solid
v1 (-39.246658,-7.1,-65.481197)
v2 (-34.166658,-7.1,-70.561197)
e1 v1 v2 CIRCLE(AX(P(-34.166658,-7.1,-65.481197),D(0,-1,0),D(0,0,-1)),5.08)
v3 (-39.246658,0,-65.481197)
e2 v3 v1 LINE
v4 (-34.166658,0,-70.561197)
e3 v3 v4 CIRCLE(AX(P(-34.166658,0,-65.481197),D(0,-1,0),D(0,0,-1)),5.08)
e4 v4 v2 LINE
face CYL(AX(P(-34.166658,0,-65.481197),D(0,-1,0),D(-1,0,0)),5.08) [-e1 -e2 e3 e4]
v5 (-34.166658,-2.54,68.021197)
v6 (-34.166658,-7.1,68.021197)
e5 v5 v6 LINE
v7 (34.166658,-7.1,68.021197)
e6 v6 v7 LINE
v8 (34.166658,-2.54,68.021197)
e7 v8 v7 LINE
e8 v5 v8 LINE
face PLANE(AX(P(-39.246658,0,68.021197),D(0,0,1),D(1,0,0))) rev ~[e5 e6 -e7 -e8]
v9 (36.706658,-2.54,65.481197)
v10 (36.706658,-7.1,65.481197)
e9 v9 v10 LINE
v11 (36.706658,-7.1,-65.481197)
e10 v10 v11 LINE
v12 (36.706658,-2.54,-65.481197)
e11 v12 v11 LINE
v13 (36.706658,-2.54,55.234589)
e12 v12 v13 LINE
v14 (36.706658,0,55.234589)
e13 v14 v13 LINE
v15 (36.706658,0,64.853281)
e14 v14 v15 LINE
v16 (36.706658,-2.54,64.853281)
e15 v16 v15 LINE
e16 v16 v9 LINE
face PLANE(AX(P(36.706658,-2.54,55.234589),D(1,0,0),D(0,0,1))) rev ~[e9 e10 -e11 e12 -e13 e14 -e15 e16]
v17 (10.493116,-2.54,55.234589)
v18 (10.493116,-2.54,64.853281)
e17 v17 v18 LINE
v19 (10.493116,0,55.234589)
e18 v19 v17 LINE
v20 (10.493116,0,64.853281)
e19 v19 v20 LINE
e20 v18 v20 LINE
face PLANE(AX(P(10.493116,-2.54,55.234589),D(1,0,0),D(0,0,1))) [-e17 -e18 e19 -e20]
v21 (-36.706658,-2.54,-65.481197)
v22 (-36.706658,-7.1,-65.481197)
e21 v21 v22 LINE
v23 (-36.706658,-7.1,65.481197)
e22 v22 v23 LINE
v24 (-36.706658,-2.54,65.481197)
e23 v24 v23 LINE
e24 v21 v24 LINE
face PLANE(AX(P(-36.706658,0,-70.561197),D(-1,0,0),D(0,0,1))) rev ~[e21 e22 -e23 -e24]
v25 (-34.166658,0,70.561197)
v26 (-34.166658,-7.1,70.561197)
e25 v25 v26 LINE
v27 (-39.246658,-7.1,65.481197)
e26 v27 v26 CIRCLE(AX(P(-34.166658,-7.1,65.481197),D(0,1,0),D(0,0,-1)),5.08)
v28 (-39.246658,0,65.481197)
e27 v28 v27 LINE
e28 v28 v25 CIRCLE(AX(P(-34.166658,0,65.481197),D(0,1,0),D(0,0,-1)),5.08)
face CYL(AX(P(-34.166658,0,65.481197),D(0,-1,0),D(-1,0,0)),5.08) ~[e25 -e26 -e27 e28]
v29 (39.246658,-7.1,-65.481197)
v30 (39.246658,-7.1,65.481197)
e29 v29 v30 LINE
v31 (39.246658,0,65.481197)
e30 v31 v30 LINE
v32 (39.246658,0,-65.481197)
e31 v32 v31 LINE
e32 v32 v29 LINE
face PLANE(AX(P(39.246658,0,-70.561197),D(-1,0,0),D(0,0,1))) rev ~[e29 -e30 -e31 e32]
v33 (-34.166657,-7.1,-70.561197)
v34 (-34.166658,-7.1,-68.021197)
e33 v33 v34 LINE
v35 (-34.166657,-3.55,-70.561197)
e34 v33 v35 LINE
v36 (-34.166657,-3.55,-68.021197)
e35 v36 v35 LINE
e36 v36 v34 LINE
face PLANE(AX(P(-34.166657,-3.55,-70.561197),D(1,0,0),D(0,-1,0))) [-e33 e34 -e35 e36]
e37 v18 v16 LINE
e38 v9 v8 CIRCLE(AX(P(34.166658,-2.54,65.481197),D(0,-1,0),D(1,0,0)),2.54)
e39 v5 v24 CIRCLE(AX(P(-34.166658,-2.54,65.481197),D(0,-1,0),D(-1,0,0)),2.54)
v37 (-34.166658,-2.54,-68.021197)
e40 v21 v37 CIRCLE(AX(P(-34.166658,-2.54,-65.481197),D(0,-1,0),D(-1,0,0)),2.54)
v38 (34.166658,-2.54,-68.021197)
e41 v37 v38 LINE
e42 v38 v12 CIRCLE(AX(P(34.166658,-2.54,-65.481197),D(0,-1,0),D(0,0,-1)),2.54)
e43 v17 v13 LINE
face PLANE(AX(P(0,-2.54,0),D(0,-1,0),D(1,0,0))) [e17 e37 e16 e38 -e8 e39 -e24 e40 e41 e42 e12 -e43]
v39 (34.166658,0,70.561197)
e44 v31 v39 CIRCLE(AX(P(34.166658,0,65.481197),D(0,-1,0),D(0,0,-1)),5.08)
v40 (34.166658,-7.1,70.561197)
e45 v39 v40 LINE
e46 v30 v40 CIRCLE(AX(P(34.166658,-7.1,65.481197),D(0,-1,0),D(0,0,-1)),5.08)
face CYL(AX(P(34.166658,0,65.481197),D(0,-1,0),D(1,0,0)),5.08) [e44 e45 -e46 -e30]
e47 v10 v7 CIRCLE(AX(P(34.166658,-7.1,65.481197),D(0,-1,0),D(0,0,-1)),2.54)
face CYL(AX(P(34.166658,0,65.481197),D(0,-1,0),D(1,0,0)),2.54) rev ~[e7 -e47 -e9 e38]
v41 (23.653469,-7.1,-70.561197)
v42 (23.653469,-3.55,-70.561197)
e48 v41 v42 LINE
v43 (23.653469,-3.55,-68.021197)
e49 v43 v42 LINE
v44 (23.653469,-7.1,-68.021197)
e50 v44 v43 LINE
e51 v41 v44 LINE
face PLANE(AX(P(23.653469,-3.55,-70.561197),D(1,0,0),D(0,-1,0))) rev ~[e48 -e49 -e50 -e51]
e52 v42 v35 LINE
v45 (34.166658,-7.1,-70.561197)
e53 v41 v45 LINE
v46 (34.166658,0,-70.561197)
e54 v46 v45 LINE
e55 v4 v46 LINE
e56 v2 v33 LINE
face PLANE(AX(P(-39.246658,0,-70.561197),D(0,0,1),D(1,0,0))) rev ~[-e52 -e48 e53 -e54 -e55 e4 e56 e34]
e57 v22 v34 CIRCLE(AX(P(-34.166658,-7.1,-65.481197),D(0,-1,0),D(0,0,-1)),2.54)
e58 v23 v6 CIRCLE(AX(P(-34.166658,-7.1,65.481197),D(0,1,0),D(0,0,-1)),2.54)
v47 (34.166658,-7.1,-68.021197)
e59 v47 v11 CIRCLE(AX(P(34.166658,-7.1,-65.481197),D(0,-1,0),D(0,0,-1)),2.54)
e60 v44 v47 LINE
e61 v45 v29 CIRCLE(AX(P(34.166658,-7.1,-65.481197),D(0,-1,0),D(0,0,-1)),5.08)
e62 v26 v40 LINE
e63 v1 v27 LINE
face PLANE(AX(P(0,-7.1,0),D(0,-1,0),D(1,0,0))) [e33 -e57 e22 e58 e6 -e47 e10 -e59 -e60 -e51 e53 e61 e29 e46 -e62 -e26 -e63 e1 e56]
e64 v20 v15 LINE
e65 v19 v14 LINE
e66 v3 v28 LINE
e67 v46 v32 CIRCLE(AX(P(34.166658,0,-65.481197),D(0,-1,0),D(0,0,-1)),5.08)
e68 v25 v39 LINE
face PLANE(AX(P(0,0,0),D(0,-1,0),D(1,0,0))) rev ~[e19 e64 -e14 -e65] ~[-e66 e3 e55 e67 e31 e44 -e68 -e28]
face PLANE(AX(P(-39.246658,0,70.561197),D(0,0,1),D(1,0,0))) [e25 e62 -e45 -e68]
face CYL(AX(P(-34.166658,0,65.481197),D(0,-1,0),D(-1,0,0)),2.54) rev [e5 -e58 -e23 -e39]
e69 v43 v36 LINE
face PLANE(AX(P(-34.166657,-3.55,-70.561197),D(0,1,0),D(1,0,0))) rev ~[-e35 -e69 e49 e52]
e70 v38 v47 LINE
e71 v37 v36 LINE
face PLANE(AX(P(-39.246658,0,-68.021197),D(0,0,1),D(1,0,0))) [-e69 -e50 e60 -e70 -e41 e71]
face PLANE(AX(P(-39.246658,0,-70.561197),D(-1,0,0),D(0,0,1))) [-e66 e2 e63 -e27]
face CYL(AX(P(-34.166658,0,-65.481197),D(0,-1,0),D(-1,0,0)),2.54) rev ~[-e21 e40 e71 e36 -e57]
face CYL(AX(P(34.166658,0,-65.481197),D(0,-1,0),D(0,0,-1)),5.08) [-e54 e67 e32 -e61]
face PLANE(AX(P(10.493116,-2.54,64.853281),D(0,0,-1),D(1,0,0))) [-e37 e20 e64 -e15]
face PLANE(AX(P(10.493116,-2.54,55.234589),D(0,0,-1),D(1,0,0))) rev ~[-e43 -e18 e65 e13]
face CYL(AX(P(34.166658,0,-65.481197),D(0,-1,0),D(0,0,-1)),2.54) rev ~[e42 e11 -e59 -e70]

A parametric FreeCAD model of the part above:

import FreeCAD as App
import Part
import Sketcher
Q = App.Units.Quantity


def edges_at(feature, points):
    """Names of the edges that pass closest to the given points."""
    edges = feature.Shape.Edges
    near = lambda p: min(range(len(edges)), key=lambda i: edges[i].distToShape(Part.Vertex(*p))[0])
    return sorted({f"Edge{near(p) + 1}" for p in points})


def faces_at(feature, points):
    """Names of the faces that lie closest to the given points."""
    faces = feature.Shape.Faces
    near = lambda p: min(range(len(faces)), key=lambda i: faces[i].distToShape(Part.Vertex(*p))[0])
    return sorted({f"Face{near(p) + 1}" for p in points})

doc = App.newDocument("Part")
body = doc.addObject("PartDesign::Body", "Body")

# Sketch on XZ plane
sketch1 = body.newObject("Sketcher::SketchObject", "Sketch")
sketch1.AttachmentSupport = (doc.getObject("XZ_Plane"), [""])
sketch1.MapMode = "FlatFace"
sketch1.addGeometry([
    Part.LineSegment(App.Vector(-39, 71, 0), App.Vector(-39, -71, 0)),
    Part.LineSegment(App.Vector(-39, -71, 0), App.Vector(39, -71, 0)),
    Part.LineSegment(App.Vector(39, -71, 0), App.Vector(39, 71, 0)),
    Part.LineSegment(App.Vector(39, 71, 0), App.Vector(-39, 71, 0)),
], False)
sketch1.addConstraint([
    Sketcher.Constraint("Coincident", 0, 2, 1, 1),
    Sketcher.Constraint("Coincident", 1, 2, 2, 1),
    Sketcher.Constraint("Coincident", 2, 2, 3, 1),
    Sketcher.Constraint("Coincident", 3, 2, 0, 1),
    Sketcher.Constraint("Vertical", 0),
    Sketcher.Constraint("Horizontal", 1),
    Sketcher.Constraint("Vertical", 2),
    Sketcher.Constraint("Horizontal", 3),
    Sketcher.Constraint("Symmetric", 0, 2, 2, 2, -1, 1),
    Sketcher.Constraint("DistanceY", 0, 2, -1, 1, Q("2.7779999 in")),
    Sketcher.Constraint("DistanceX", 1, 1, 1, 2, 78.493316),
])
pad1 = body.newObject("PartDesign::Pad", "Pad")
pad1.Profile = sketch1
pad1.Length = 7.1
doc.recompute()

fillet = body.newObject("PartDesign::Fillet", "Fillet")
fillet.Base = (pad1, edges_at(pad1, [
    (-39.247, -3.55, 70.561),
    (-39.247, -3.55, -70.561),
    (39.247, -3.55, -70.561),
    (39.247, -3.55, 70.561),
]))
fillet.Radius = Q("0.2 in")
doc.recompute()

thickness = body.newObject("PartDesign::Thickness", "Thickness")
thickness.Base = (fillet, faces_at(fillet, [(0, -7.1, 0)]))
thickness.Value = Q("0.1 in")
thickness.Reversed = True
thickness.Join = "Arc"

# Sketch on XZ plane
sketch2 = body.newObject("Sketcher::SketchObject", "Sketch001")
sketch2.AttachmentSupport = (doc.getObject("XZ_Plane"), [""])
sketch2.MapMode = "FlatFace"
sketch2.AttachmentOffset = App.Placement(App.Vector(0, 0, 0.1 * 25.4), App.Rotation())
sketch2.addGeometry([
    Part.LineSegment(App.Vector(10, 65, 0), App.Vector(10, 55, 0)),
    Part.LineSegment(App.Vector(10, 55, 0), App.Vector(37, 55, 0)),
    Part.LineSegment(App.Vector(37, 55, 0), App.Vector(37, 65, 0)),
    Part.LineSegment(App.Vector(37, 65, 0), App.Vector(10, 65, 0)),
], False)
sketch2.addConstraint([
    Sketcher.Constraint("Coincident", 0, 2, 1, 1),
    Sketcher.Constraint("Coincident", 1, 2, 2, 1),
    Sketcher.Constraint("Coincident", 2, 2, 3, 1),
    Sketcher.Constraint("Coincident", 3, 2, 0, 1),
    Sketcher.Constraint("Vertical", 0),
    Sketcher.Constraint("Horizontal", 1),
    Sketcher.Constraint("Vertical", 2),
    Sketcher.Constraint("Horizontal", 3),
    Sketcher.Constraint("DistanceX", 1, 1, 1, 2, 26.213542),
    Sketcher.Constraint("DistanceY", 0, 2, 0, 1, 9.618692),
    Sketcher.Constraint("DistanceY", -1, 1, 0, 2, 55.234589),
    Sketcher.Constraint("DistanceX", -1, 1, 0, 2, 10.493116),
])
pocket1 = body.newObject("PartDesign::Pocket", "Pocket")
pocket1.Profile = sketch2
pocket1.Length = Q("1 in")
pocket1.Midplane = True

# Sketch on XY plane
sketch3 = body.newObject("Sketcher::SketchObject", "Sketch002")
sketch3.AttachmentSupport = (doc.getObject("XY_Plane"), [""])
sketch3.MapMode = "FlatFace"
sketch3.AttachmentOffset = App.Placement(App.Vector(0, 0, -2.7779999 * 25.4), App.Rotation())
sketch3.addGeometry([
    Part.LineSegment(App.Vector(-34.2, -7.1, 0), App.Vector(-34.2, -3.5, 0)),
    Part.LineSegment(App.Vector(-34.2, -3.5, 0), App.Vector(23.7, -3.5, 0)),
    Part.LineSegment(App.Vector(23.7, -3.5, 0), App.Vector(23.7, -7.1, 0)),
    Part.LineSegment(App.Vector(23.7, -7.1, 0), App.Vector(-34.2, -7.1, 0)),
], False)
sketch3.addConstraint([
    Sketcher.Constraint("Coincident", 0, 2, 1, 1),
    Sketcher.Constraint("Coincident", 1, 2, 2, 1),
    Sketcher.Constraint("Coincident", 2, 2, 3, 1),
    Sketcher.Constraint("Coincident", 3, 2, 0, 1),
    Sketcher.Constraint("Vertical", 0),
    Sketcher.Constraint("Horizontal", 1),
    Sketcher.Constraint("Vertical", 2),
    Sketcher.Constraint("Horizontal", 3),
    Sketcher.Constraint("DistanceY", 0, 1, 0, 2, 3.55),
    Sketcher.Constraint("DistanceY", 0, 2, -1, 1, 3.55),
    Sketcher.Constraint("DistanceX", 1, 1, 1, 2, 57.820127),
    Sketcher.Constraint("DistanceX", -1, 1, 1, 2, 23.653469),
])
pocket2 = body.newObject("PartDesign::Pocket", "Pocket001")
pocket2.Profile = sketch3
pocket2.Length = Q("1 in")
pocket2.Midplane = True

doc.recompute()
